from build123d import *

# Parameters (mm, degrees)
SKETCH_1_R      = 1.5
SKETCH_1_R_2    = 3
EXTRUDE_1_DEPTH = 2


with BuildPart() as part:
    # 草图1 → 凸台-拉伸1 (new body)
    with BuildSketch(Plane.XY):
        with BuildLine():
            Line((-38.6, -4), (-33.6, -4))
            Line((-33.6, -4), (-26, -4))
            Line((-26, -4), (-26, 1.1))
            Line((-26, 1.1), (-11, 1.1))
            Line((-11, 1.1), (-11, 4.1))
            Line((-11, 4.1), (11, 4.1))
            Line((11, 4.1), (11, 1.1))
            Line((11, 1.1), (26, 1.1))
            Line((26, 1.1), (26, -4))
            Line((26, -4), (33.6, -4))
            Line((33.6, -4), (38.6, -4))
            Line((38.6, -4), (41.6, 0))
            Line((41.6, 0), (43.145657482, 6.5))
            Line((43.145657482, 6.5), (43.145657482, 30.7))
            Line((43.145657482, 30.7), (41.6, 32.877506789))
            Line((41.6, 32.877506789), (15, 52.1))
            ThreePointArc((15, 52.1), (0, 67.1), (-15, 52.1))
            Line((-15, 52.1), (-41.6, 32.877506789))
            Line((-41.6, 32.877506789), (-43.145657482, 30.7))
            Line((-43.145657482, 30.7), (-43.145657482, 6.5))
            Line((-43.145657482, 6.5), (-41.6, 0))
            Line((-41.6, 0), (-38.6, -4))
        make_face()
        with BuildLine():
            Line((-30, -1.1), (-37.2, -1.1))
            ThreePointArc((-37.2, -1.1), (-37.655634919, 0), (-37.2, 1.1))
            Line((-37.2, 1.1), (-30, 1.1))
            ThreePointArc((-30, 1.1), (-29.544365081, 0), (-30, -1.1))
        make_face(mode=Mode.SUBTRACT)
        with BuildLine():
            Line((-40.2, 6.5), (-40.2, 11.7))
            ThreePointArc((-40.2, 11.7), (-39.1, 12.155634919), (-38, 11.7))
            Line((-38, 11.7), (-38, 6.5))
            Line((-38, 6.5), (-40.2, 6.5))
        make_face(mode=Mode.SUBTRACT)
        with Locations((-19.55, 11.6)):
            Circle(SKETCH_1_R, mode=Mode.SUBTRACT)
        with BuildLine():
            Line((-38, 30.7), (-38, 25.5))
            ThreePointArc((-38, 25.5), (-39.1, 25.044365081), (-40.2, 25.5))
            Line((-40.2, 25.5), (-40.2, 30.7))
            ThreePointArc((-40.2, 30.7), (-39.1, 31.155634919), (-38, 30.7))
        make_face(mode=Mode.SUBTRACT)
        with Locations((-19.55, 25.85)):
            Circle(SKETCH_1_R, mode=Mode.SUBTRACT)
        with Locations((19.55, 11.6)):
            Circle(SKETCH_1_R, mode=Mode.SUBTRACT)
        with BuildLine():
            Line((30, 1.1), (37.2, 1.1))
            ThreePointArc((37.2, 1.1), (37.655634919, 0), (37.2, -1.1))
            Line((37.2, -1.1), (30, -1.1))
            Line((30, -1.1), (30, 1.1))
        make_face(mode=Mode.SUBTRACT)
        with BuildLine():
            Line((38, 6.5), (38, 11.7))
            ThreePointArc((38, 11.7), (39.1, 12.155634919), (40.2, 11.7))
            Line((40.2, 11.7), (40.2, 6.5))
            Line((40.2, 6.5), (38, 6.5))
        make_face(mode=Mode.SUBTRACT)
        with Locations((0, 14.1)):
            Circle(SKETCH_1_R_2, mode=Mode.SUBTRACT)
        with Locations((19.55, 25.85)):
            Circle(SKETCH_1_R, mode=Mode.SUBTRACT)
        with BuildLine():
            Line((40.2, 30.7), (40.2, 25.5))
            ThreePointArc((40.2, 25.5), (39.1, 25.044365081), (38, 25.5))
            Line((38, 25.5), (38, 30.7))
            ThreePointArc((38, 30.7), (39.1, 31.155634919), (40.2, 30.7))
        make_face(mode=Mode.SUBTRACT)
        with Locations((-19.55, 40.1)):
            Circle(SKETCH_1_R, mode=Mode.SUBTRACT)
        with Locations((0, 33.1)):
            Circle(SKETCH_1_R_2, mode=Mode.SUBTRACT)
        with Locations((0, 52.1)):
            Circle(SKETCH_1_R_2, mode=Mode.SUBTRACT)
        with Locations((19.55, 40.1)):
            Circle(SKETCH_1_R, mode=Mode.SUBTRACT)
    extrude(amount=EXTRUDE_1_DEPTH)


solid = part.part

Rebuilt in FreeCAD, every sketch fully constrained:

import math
import FreeCAD as App
import Part
import Sketcher
from FreeCAD import Vector

doc = App.newDocument("Part")
params = doc.addObject("Spreadsheet::Sheet", "Params")
for row, (alias, value) in enumerate([
    ("sketch1_diameter", "3 mm"),
    ("sketch1_diameter2", "6 mm"),
    ("sketch1_radius", "15 mm"),
    ("sketch1_width", "15 mm"),
    ("sketch1_width2", "22 mm"),
    ("pad1_length", "2 mm"),
], start=1):
    params.set(f"A{row}", alias)
    params.set(f"B{row}", "=" + value)
    params.setAlias(f"B{row}", alias)

body = doc.addObject("PartDesign::Body", "Body")

sketch1 = body.newObject("Sketcher::SketchObject", "Sketch")
sketch1.AttachmentSupport = (doc.getObject("XY_Plane"), [""])
sketch1.MapMode = "FlatFace"
sketch1.addGeometry([
    Part.LineSegment(Vector(-38.6, -4, 0), Vector(-26, -4, 0)),
    Part.LineSegment(Vector(-26, -4, 0), Vector(-26, 1.1, 0)),
    Part.LineSegment(Vector(-26, 1.1, 0), Vector(-11, 1.1, 0)),
    Part.LineSegment(Vector(-11, 1.1, 0), Vector(-11, 4.1, 0)),
    Part.LineSegment(Vector(-11, 4.1, 0), Vector(11, 4.1, 0)),
    Part.LineSegment(Vector(11, 4.1, 0), Vector(11, 1.1, 0)),
    Part.LineSegment(Vector(11, 1.1, 0), Vector(26, 1.1, 0)),
    Part.LineSegment(Vector(26, 1.1, 0), Vector(26, -4, 0)),
    Part.LineSegment(Vector(26, -4, 0), Vector(38.6, -4, 0)),
    Part.LineSegment(Vector(38.6, -4, 0), Vector(41.6, 0, 0)),
    Part.LineSegment(Vector(41.6, 0, 0), Vector(43.145657, 6.5, 0)),
    Part.LineSegment(Vector(43.145657, 6.5, 0), Vector(43.145657, 30.7, 0)),
    Part.LineSegment(Vector(43.145657, 30.7, 0), Vector(41.6, 32.877507, 0)),
    Part.LineSegment(Vector(41.6, 32.877507, 0), Vector(15, 52.1, 0)),
    Part.ArcOfCircle(Part.Circle(Vector(0, 52.1, 0), Vector(0, 0, 1), 15), math.radians(0), math.radians(180)),
    Part.LineSegment(Vector(-15, 52.1, 0), Vector(-41.6, 32.877507, 0)),
    Part.LineSegment(Vector(-41.6, 32.877507, 0), Vector(-43.145657, 30.7, 0)),
    Part.LineSegment(Vector(-43.145657, 30.7, 0), Vector(-43.145657, 6.5, 0)),
    Part.LineSegment(Vector(-43.145657, 6.5, 0), Vector(-41.6, 0, 0)),
    Part.LineSegment(Vector(-41.6, 0, 0), Vector(-38.6, -4, 0)),
    Part.ArcOfCircle(Part.Circle(Vector(-31.1, 0, 0), Vector(0, 0, 1), 1.555635), math.radians(-45), math.radians(45)),
    Part.LineSegment(Vector(-30, -1.1, 0), Vector(-37.2, -1.1, 0)),
    Part.ArcOfCircle(Part.Circle(Vector(-36.1, 0, 0), Vector(0, 0, 1), 1.555635), math.radians(135), math.radians(225)),
    Part.LineSegment(Vector(-37.2, 1.1, 0), Vector(-30, 1.1, 0)),
    Part.LineSegment(Vector(-38, 6.5, 0), Vector(-40.2, 6.5, 0)),
    Part.LineSegment(Vector(-40.2, 6.5, 0), Vector(-40.2, 11.7, 0)),
    Part.ArcOfCircle(Part.Circle(Vector(-39.1, 10.6, 0), Vector(0, 0, 1), 1.555635), math.radians(45), math.radians(135)),
    Part.LineSegment(Vector(-38, 11.7, 0), Vector(-38, 6.5, 0)),
    Part.Circle(Vector(-19.55, 11.6, 0), Vector(0, 0, 1), 1.5),
    Part.Circle(Vector(-19.55, 25.85, 0), Vector(0, 0, 1), 1.5),
    Part.Circle(Vector(19.55, 11.6, 0), Vector(0, 0, 1), 1.5),
    Part.LineSegment(Vector(30, -1.1, 0), Vector(30, 1.1, 0)),
    Part.LineSegment(Vector(30, 1.1, 0), Vector(37.2, 1.1, 0)),
    Part.ArcOfCircle(Part.Circle(Vector(36.1, 0, 0), Vector(0, 0, 1), 1.555635), math.radians(-45), math.radians(45)),
    Part.LineSegment(Vector(37.2, -1.1, 0), Vector(30, -1.1, 0)),
    Part.LineSegment(Vector(40.2, 6.5, 0), Vector(38, 6.5, 0)),
    Part.LineSegment(Vector(38, 6.5, 0), Vector(38, 11.7, 0)),
    Part.ArcOfCircle(Part.Circle(Vector(39.1, 10.6, 0), Vector(0, 0, 1), 1.555635), math.radians(45), math.radians(135)),
    Part.LineSegment(Vector(40.2, 11.7, 0), Vector(40.2, 6.5, 0)),
    Part.Circle(Vector(0, 14.1, 0), Vector(0, 0, 1), 3),
    Part.Circle(Vector(19.55, 25.85, 0), Vector(0, 0, 1), 1.5),
    Part.ArcOfCircle(Part.Circle(Vector(-39.1, 29.6, 0), Vector(0, 0, 1), 1.555635), math.radians(45), math.radians(135)),
    Part.LineSegment(Vector(-38, 30.7, 0), Vector(-38, 25.5, 0)),
    Part.ArcOfCircle(Part.Circle(Vector(-39.1, 26.6, 0), Vector(0, 0, 1), 1.555635), math.radians(-135), math.radians(-45)),
    Part.LineSegment(Vector(-40.2, 25.5, 0), Vector(-40.2, 30.7, 0)),
    Part.Circle(Vector(-19.55, 40.1, 0), Vector(0, 0, 1), 1.5),
    Part.Circle(Vector(0, 33.1, 0), Vector(0, 0, 1), 3),
    Part.Circle(Vector(19.55, 40.1, 0), Vector(0, 0, 1), 1.5),
    Part.ArcOfCircle(Part.Circle(Vector(39.1, 29.6, 0), Vector(0, 0, 1), 1.555635), math.radians(45), math.radians(135)),
    Part.LineSegment(Vector(40.2, 30.7, 0), Vector(40.2, 25.5, 0)),
    Part.ArcOfCircle(Part.Circle(Vector(39.1, 26.6, 0), Vector(0, 0, 1), 1.555635), math.radians(-135), math.radians(-45)),
    Part.LineSegment(Vector(38, 25.5, 0), Vector(38, 30.7, 0)),
    Part.Circle(Vector(0, 52.1, 0), Vector(0, 0, 1), 3),
], False)
sketch1.addConstraint([
    Sketcher.Constraint("Coincident", 0, 2, 1, 1),
    Sketcher.Constraint("Coincident", 1, 2, 2, 1),
    Sketcher.Constraint("Coincident", 2, 2, 3, 1),
    Sketcher.Constraint("Coincident", 3, 2, 4, 1),
    Sketcher.Constraint("Coincident", 4, 2, 5, 1),
    Sketcher.Constraint("Coincident", 5, 2, 6, 1),
    Sketcher.Constraint("Coincident", 6, 2, 7, 1),
    Sketcher.Constraint("Coincident", 7, 2, 8, 1),
    Sketcher.Constraint("Coincident", 8, 2, 9, 1),
    Sketcher.Constraint("Coincident", 9, 2, 10, 1),
    Sketcher.Constraint("Coincident", 10, 2, 11, 1),
    Sketcher.Constraint("Coincident", 11, 2, 12, 1),
    Sketcher.Constraint("Coincident", 12, 2, 13, 1),
    Sketcher.Constraint("Coincident", 13, 2, 14, 1),
    Sketcher.Constraint("Coincident", 14, 2, 15, 1),
    Sketcher.Constraint("Coincident", 15, 2, 16, 1),
    Sketcher.Constraint("Coincident", 16, 2, 17, 1),
    Sketcher.Constraint("Coincident", 17, 2, 18, 1),
    Sketcher.Constraint("Coincident", 18, 2, 19, 1),
    Sketcher.Constraint("Coincident", 19, 2, 0, 1),
    Sketcher.Constraint("Coincident", 20, 1, 21, 1),
    Sketcher.Constraint("Coincident", 21, 2, 22, 2),
    Sketcher.Constraint("Coincident", 22, 1, 23, 1),
    Sketcher.Constraint("Coincident", 23, 2, 20, 2),
    Sketcher.Constraint("Coincident", 24, 2, 25, 1),
    Sketcher.Constraint("Coincident", 25, 2, 26, 2),
    Sketcher.Constraint("Coincident", 26, 1, 27, 1),
    Sketcher.Constraint("Coincident", 27, 2, 24, 1),
    Sketcher.Constraint("Coincident", 31, 2, 32, 1),
    Sketcher.Constraint("Coincident", 32, 2, 33, 2),
    Sketcher.Constraint("Coincident", 33, 1, 34, 1),
    Sketcher.Constraint("Coincident", 34, 2, 31, 1),
    Sketcher.Constraint("Coincident", 35, 2, 36, 1),
    Sketcher.Constraint("Coincident", 36, 2, 37, 2),
    Sketcher.Constraint("Coincident", 37, 1, 38, 1),
    Sketcher.Constraint("Coincident", 38, 2, 35, 1),
    Sketcher.Constraint("Coincident", 41, 1, 42, 1),
    Sketcher.Constraint("Coincident", 42, 2, 43, 2),
    Sketcher.Constraint("Coincident", 43, 1, 44, 1),
    Sketcher.Constraint("Coincident", 44, 2, 41, 2),
    Sketcher.Constraint("Coincident", 48, 1, 49, 1),
    Sketcher.Constraint("Coincident", 49, 2, 50, 2),
    Sketcher.Constraint("Coincident", 50, 1, 51, 1),
    Sketcher.Constraint("Coincident", 51, 2, 48, 2),
    Sketcher.Constraint("Horizontal", 0),
    Sketcher.Constraint("Vertical", 1),
    Sketcher.Constraint("Horizontal", 2),
    Sketcher.Constraint("Vertical", 3),
    Sketcher.Constraint("Horizontal", 4),
    Sketcher.Constraint("Vertical", 5),
    Sketcher.Constraint("Horizontal", 6),
    Sketcher.Constraint("Vertical", 7),
    Sketcher.Constraint("Horizontal", 8),
    Sketcher.Constraint("Vertical", 11),
    Sketcher.Constraint("Vertical", 17),
    Sketcher.Constraint("Horizontal", 21),
    Sketcher.Constraint("Horizontal", 23),
    Sketcher.Constraint("Horizontal", 24),
    Sketcher.Constraint("Vertical", 25),
    Sketcher.Constraint("Vertical", 27),
    Sketcher.Constraint("Vertical", 31),
    Sketcher.Constraint("Horizontal", 32),
    Sketcher.Constraint("Horizontal", 34),
    Sketcher.Constraint("Horizontal", 35),
    Sketcher.Constraint("Vertical", 36),
    Sketcher.Constraint("Vertical", 38),
    Sketcher.Constraint("Vertical", 42),
    Sketcher.Constraint("Vertical", 44),
    Sketcher.Constraint("Vertical", 49),
    Sketcher.Constraint("Vertical", 51),
    Sketcher.Constraint("Coincident", 52, 3, 14, 3),
    Sketcher.Constraint("Equal", 20, 22),
    Sketcher.Constraint("Equal", 22, 26),
    Sketcher.Constraint("Equal", 28, 29),
    Sketcher.Constraint("Equal", 29, 30),
    Sketcher.Constraint("Equal", 26, 33),
    Sketcher.Constraint("Equal", 33, 37),
    Sketcher.Constraint("Equal", 30, 40),
    Sketcher.Constraint("Equal", 37, 41),
    Sketcher.Constraint("Equal", 41, 43),
    Sketcher.Constraint("Equal", 40, 45),
    Sketcher.Constraint("Equal", 39, 46),
    Sketcher.Constraint("Equal", 45, 47),
    Sketcher.Constraint("Equal", 43, 48),
    Sketcher.Constraint("Equal", 48, 50),
    Sketcher.Constraint("Equal", 46, 52),
    Sketcher.Constraint("Symmetric", 22, 3, 33, 3, -1, 1),
    Sketcher.Constraint("Symmetric", 9, 2, 18, 2, -1, 1),
    Sketcher.Constraint("Symmetric", 20, 1, 31, 2, -1, 1),
    Sketcher.Constraint("Symmetric", 23, 2, 34, 2, -1, 1),
    Sketcher.Constraint("Symmetric", 28, 3, 30, 3, -2),
    Sketcher.Constraint("Symmetric", 26, 3, 37, 3, -2),
    Sketcher.Constraint("Symmetric", 29, 3, 40, 3, -2),
    Sketcher.Constraint("Symmetric", 45, 3, 47, 3, -2),
    Sketcher.Constraint("Symmetric", 41, 3, 48, 3, -2),
    Sketcher.Constraint("Symmetric", 43, 3, 50, 3, -2),
    Sketcher.Constraint("Symmetric", 2, 2, 5, 2, -2),
    Sketcher.Constraint("Symmetric", 0, 2, 7, 2, -2),
    Sketcher.Constraint("Symmetric", 13, 2, 14, 2, -2),
    Sketcher.Constraint("Symmetric", 12, 2, 15, 2, -2),
    Sketcher.Constraint("Symmetric", 11, 2, 16, 2, -2),
    Sketcher.Constraint("Symmetric", 22, 1, 32, 2, -2),
    Sketcher.Constraint("Symmetric", 27, 2, 35, 2, -2),
    Sketcher.Constraint("PointOnObject", 39, 3, -2),
    Sketcher.Constraint("PointOnObject", 46, 3, -2),
    Sketcher.Constraint("PointOnObject", 9, 2, -1),
    Sketcher.Constraint("Horizontal", 52, 3, 13, 2),
    Sketcher.Constraint("Horizontal", 10, 2, 17, 2),
    Sketcher.Constraint("Horizontal", 6, 2, 22, 1),
    Sketcher.Constraint("Horizontal", 17, 2, 24, 2),
    Sketcher.Constraint("Horizontal", 25, 2, 26, 1),
    Sketcher.Constraint("Horizontal", 36, 2, 37, 1),
    Sketcher.Constraint("Horizontal", 16, 2, 41, 1),
    Sketcher.Constraint("Horizontal", 42, 2, 43, 1),
    Sketcher.Constraint("Horizontal", 41, 1, 44, 2),
    Sketcher.Constraint("Horizontal", 44, 2, 48, 1),
    Sketcher.Constraint("Horizontal", 49, 2, 50, 1),
    Sketcher.Constraint("Vertical", 28, 3, 29, 3),
    Sketcher.Constraint("Vertical", 26, 3, 41, 3),
    Sketcher.Constraint("Vertical", 29, 3, 45, 3),
    Sketcher.Constraint("Vertical", 9, 2, 12, 2),
    Sketcher.Constraint("Vertical", 27, 2, 41, 1),
    Sketcher.Constraint("Equal", 0, 8),
    Sketcher.Constraint("Equal", 35, 31),
    Sketcher.Constraint("Equal", 38, 42),
    Sketcher.Constraint("Diameter", 28, 3.0),
    Sketcher.Constraint("Diameter", 39, 6.0),
    Sketcher.Constraint("Radius", 14, 15.0),
    Sketcher.Constraint("DistanceX", 2, 1, 2, 2, 15.0),
    Sketcher.Constraint("DistanceX", 4, 1, 4, 2, 22.0),
    Sketcher.Constraint("DistanceY", 3, 1, 3, 2, 3.0),
    Sketcher.Constraint("Distance", 9, 5.0),
    Sketcher.Constraint("DistanceX", 0, 1, 0, 2, 12.6),
    Sketcher.Constraint("DistanceX", 21, 2, 21, 1, 7.2),
    Sketcher.Constraint("DistanceX", 24, 2, 24, 1, 2.2),
    Sketcher.Constraint("DistanceY", 1, 1, 1, 2, 5.1),
    Sketcher.Constraint("DistanceY", 11, 1, 11, 2, 24.2),
    Sketcher.Constraint("DistanceY", 25, 1, 25, 2, 5.2),
    Sketcher.Constraint("DistanceX", 20, 1, -1, 1, 30.0),
    Sketcher.Constraint("DistanceX", 26, 1, -1, 1, 38.0),
    Sketcher.Constraint("DistanceY", -1, 1, 14, 3, 52.1),
    Sketcher.Constraint("DistanceX", 20, 3, -1, 1, 31.1),
    Sketcher.Constraint("DistanceY", -1, 1, 26, 3, 10.6),
    Sketcher.Constraint("DistanceY", -1, 1, 28, 3, 11.6),
    Sketcher.Constraint("DistanceY", -1, 1, 39, 3, 14.1),
    Sketcher.Constraint("DistanceY", -1, 1, 45, 3, 40.1),
    Sketcher.Constraint("DistanceY", -1, 1, 46, 3, 33.1),
    Sketcher.Constraint("DistanceX", 28, 3, -1, 1, 19.55),
    Sketcher.Constraint("DistanceY", -1, 1, 29, 3, 25.85),
    Sketcher.Constraint("Distance", 10, 6.681247),
    Sketcher.Constraint("Distance", 12, 2.670317),
])
sketch1.setExpression("Constraints[125]", "Params.sketch1_diameter")
sketch1.setExpression("Constraints[126]", "Params.sketch1_diameter2")
sketch1.setExpression("Constraints[127]", "Params.sketch1_radius")
sketch1.setExpression("Constraints[128]", "Params.sketch1_width")
sketch1.setExpression("Constraints[129]", "Params.sketch1_width2")
pad1 = body.newObject("PartDesign::Pad", "Pad")
pad1.Profile = sketch1
pad1.setExpression("Length", "Params.pad1_length")

doc.recompute()
